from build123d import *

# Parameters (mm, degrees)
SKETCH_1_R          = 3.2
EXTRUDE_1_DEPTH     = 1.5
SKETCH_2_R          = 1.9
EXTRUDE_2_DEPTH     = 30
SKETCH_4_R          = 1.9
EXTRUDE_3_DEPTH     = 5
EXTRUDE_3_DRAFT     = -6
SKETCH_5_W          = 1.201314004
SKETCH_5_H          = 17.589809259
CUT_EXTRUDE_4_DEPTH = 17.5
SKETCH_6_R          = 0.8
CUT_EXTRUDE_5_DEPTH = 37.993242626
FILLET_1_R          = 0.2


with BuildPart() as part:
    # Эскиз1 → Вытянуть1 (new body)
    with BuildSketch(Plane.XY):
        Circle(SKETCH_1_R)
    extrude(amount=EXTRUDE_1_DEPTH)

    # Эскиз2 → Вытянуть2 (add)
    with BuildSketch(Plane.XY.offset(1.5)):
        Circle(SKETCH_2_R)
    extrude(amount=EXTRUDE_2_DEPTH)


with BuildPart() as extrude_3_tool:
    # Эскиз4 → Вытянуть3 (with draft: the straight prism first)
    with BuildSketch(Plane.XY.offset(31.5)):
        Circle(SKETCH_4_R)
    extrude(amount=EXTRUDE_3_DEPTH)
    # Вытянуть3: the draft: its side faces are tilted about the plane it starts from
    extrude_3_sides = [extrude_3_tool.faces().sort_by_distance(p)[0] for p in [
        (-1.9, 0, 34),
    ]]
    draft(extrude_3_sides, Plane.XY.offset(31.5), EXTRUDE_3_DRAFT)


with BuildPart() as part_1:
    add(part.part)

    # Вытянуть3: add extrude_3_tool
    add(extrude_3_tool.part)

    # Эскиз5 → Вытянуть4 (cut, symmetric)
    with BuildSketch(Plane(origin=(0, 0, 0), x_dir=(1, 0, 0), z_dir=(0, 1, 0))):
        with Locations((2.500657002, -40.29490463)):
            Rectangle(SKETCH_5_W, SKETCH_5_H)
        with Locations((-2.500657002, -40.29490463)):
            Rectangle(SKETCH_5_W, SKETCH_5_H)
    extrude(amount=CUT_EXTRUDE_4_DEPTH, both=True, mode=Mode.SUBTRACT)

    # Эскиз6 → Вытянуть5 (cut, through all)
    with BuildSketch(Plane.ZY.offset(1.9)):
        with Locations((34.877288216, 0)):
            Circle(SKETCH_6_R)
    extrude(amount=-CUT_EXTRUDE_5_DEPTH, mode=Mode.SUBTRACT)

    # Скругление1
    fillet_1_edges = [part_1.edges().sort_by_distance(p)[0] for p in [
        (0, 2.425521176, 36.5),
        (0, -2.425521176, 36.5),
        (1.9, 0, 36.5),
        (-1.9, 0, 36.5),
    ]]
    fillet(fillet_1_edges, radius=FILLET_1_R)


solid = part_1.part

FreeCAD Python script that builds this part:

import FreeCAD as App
import Part
import Sketcher

V = App.Vector


def edges_at(feature, points):
    """Names of the edges that pass closest to the given points."""
    edges = feature.Shape.Edges
    near = lambda p: min(range(len(edges)), key=lambda i: edges[i].distToShape(Part.Vertex(*p))[0])
    return sorted({f"Edge{near(p) + 1}" for p in points})


def faces_at(feature, points):
    """Names of the faces that lie closest to the given points."""
    faces = feature.Shape.Faces
    near = lambda p: min(range(len(faces)), key=lambda i: faces[i].distToShape(Part.Vertex(*p))[0])
    return sorted({f"Face{near(p) + 1}" for p in points})

doc = App.newDocument("Part")
body = doc.addObject("PartDesign::Body", "Body")

# Sketch on XY plane
sketch1 = doc.addObject("Sketcher::SketchObject", "Sketch")
body.addObject(sketch1)
sketch1.AttachmentSupport = (doc.XY_Plane, [""])
sketch1.MapMode = "FlatFace"
sketch1.addGeometry(Part.Circle(V(0, 0, 0), V(0, 0, 1), 3.2), False)
sketch1.addConstraint(Sketcher.Constraint("Coincident", 0, 3, -1, 1))
sketch1.addConstraint(Sketcher.Constraint("Diameter", 0, 6.4))
pad1 = doc.addObject("PartDesign::Pad", "Pad")
body.addObject(pad1)
pad1.Profile = sketch1
pad1.Length = 1.5

# Sketch on XY plane
sketch2 = doc.addObject("Sketcher::SketchObject", "Sketch001")
body.addObject(sketch2)
sketch2.AttachmentSupport = (doc.XY_Plane, [""])
sketch2.MapMode = "FlatFace"
sketch2.AttachmentOffset = App.Placement(V(0, 0, 1.5), App.Rotation())
sketch2.addGeometry(Part.Circle(V(0, 0, 0), V(0, 0, 1), 1.9), False)
sketch2.addConstraint(Sketcher.Constraint("Coincident", 0, 3, -1, 1))
sketch2.addConstraint(Sketcher.Constraint("Diameter", 0, 3.8))
pad2 = doc.addObject("PartDesign::Pad", "Pad001")
body.addObject(pad2)
pad2.Profile = sketch2
pad2.Length = 30
body2 = doc.addObject("PartDesign::Body", "Body001")

# Sketch on XY plane
sketch3 = doc.addObject("Sketcher::SketchObject", "Sketch002")
body2.addObject(sketch3)
sketch3.AttachmentSupport = (doc.getObject("XY_Plane001"), [""])
sketch3.MapMode = "FlatFace"
sketch3.AttachmentOffset = App.Placement(V(0, 0, 31.5), App.Rotation())
sketch3.addGeometry(Part.Circle(V(0, 0, 0), V(0, 0, 1), 1.9), False)
sketch3.addConstraint(Sketcher.Constraint("Coincident", 0, 3, -1, 1))
sketch3.addConstraint(Sketcher.Constraint("Diameter", 0, 3.8))
pad3 = doc.addObject("PartDesign::Pad", "Pad002")
body2.addObject(pad3)
pad3.Profile = sketch3
pad3.Length = 5
doc.recompute()

datumplane = doc.addObject("PartDesign::Plane", "DatumPlane")
body2.addObject(datumplane)
datumplane.AttachmentSupport = (doc.getObject("XY_Plane001"), [""])
datumplane.MapMode = "FlatFace"
datumplane.AttachmentOffset = App.Placement(V(0, 0, 31.5), App.Rotation())
draft = doc.addObject("PartDesign::Draft", "Draft")
body2.addObject(draft)
draft.Base = (pad3, faces_at(pad3, [(-1.9, 0, 34)]))
draft.NeutralPlane = (datumplane, [""])
draft.Angle = 6
draft.Reversed = True
doc.recompute()

boolean = doc.addObject("PartDesign::Boolean", "Boolean")
body.addObject(boolean)
boolean.Type = "Fuse"
boolean.addObjects([body2])

# Sketch on XZ plane
sketch4 = doc.addObject("Sketcher::SketchObject", "Sketch003")
body.addObject(sketch4)
sketch4.AttachmentSupport = (doc.XZ_Plane, [""])
sketch4.MapMode = "FlatFace"
sketch4.addGeometry(Part.LineSegment(V(1.9, 31.5, 0), V(1.9, 49.1, 0)), False)
sketch4.addGeometry(Part.LineSegment(V(1.9, 49.1, 0), V(3.1, 49.1, 0)), False)
sketch4.addGeometry(Part.LineSegment(V(3.1, 49.1, 0), V(3.1, 31.5, 0)), False)
sketch4.addGeometry(Part.LineSegment(V(3.1, 31.5, 0), V(1.9, 31.5, 0)), False)
sketch4.addGeometry(Part.LineSegment(V(-3.1, 31.5, 0), V(-3.1, 49.1, 0)), False)
sketch4.addGeometry(Part.LineSegment(V(-3.1, 49.1, 0), V(-1.9, 49.1, 0)), False)
sketch4.addGeometry(Part.LineSegment(V(-1.9, 49.1, 0), V(-1.9, 31.5, 0)), False)
sketch4.addGeometry(Part.LineSegment(V(-1.9, 31.5, 0), V(-3.1, 31.5, 0)), False)
sketch4.addConstraint(Sketcher.Constraint("Coincident", 0, 2, 1, 1))
sketch4.addConstraint(Sketcher.Constraint("Coincident", 1, 2, 2, 1))
sketch4.addConstraint(Sketcher.Constraint("Coincident", 2, 2, 3, 1))
sketch4.addConstraint(Sketcher.Constraint("Coincident", 3, 2, 0, 1))
sketch4.addConstraint(Sketcher.Constraint("Coincident", 4, 2, 5, 1))
sketch4.addConstraint(Sketcher.Constraint("Coincident", 5, 2, 6, 1))
sketch4.addConstraint(Sketcher.Constraint("Coincident", 6, 2, 7, 1))
sketch4.addConstraint(Sketcher.Constraint("Coincident", 7, 2, 4, 1))
sketch4.addConstraint(Sketcher.Constraint("Vertical", 0))
sketch4.addConstraint(Sketcher.Constraint("Horizontal", 1))
sketch4.addConstraint(Sketcher.Constraint("Vertical", 2))
sketch4.addConstraint(Sketcher.Constraint("Horizontal", 3))
sketch4.addConstraint(Sketcher.Constraint("Vertical", 4))
sketch4.addConstraint(Sketcher.Constraint("Horizontal", 5))
sketch4.addConstraint(Sketcher.Constraint("Vertical", 6))
sketch4.addConstraint(Sketcher.Constraint("Horizontal", 7))
sketch4.addConstraint(Sketcher.Constraint("Symmetric", 1, 2, 4, 2, -2))
sketch4.addConstraint(Sketcher.Constraint("Symmetric", 3, 2, 6, 2, -2))
sketch4.addConstraint(Sketcher.Constraint("DistanceX", -1, 1, 0, 2, 1.9))
sketch4.addConstraint(Sketcher.Constraint("DistanceY", -1, 1, 2, 2, 31.5))
sketch4.addConstraint(Sketcher.Constraint("DistanceY", 0, 1, 0, 2, 17.589809))
sketch4.addConstraint(Sketcher.Constraint("DistanceX", 1, 1, 1, 2, 1.201314))
pocket1 = doc.addObject("PartDesign::Pocket", "Pocket")
body.addObject(pocket1)
pocket1.Profile = sketch4
pocket1.Length = 35
pocket1.Midplane = True

# Sketch on YZ plane
sketch5 = doc.addObject("Sketcher::SketchObject", "Sketch004")
body.addObject(sketch5)
sketch5.AttachmentSupport = (doc.YZ_Plane, [""])
sketch5.MapMode = "FlatFace"
sketch5.AttachmentOffset = App.Placement(V(0, 0, -1.9), App.Rotation())
sketch5.addGeometry(Part.Circle(V(0, 34.9, 0), V(0, 0, 1), 0.8), False)
sketch5.addConstraint(Sketcher.Constraint("PointOnObject", 0, 3, -2))
sketch5.addConstraint(Sketcher.Constraint("Diameter", 0, 1.6))
sketch5.addConstraint(Sketcher.Constraint("DistanceY", -1, 1, 0, 3, 34.877288))
pocket2 = doc.addObject("PartDesign::Pocket", "Pocket001")
body.addObject(pocket2)
pocket2.Profile = sketch5
pocket2.Type = "ThroughAll"
pocket2.Reversed = True
doc.recompute()

fillet = doc.addObject("PartDesign::Fillet", "Fillet")
body.addObject(fillet)
fillet.Base = (pocket2, edges_at(pocket2, [
    (0, 2.426, 36.5),
    (0, -2.426, 36.5),
    (1.9, 0, 36.5),
    (-1.9, 0, 36.5),
]))
fillet.Radius = 0.2

doc.recompute()
